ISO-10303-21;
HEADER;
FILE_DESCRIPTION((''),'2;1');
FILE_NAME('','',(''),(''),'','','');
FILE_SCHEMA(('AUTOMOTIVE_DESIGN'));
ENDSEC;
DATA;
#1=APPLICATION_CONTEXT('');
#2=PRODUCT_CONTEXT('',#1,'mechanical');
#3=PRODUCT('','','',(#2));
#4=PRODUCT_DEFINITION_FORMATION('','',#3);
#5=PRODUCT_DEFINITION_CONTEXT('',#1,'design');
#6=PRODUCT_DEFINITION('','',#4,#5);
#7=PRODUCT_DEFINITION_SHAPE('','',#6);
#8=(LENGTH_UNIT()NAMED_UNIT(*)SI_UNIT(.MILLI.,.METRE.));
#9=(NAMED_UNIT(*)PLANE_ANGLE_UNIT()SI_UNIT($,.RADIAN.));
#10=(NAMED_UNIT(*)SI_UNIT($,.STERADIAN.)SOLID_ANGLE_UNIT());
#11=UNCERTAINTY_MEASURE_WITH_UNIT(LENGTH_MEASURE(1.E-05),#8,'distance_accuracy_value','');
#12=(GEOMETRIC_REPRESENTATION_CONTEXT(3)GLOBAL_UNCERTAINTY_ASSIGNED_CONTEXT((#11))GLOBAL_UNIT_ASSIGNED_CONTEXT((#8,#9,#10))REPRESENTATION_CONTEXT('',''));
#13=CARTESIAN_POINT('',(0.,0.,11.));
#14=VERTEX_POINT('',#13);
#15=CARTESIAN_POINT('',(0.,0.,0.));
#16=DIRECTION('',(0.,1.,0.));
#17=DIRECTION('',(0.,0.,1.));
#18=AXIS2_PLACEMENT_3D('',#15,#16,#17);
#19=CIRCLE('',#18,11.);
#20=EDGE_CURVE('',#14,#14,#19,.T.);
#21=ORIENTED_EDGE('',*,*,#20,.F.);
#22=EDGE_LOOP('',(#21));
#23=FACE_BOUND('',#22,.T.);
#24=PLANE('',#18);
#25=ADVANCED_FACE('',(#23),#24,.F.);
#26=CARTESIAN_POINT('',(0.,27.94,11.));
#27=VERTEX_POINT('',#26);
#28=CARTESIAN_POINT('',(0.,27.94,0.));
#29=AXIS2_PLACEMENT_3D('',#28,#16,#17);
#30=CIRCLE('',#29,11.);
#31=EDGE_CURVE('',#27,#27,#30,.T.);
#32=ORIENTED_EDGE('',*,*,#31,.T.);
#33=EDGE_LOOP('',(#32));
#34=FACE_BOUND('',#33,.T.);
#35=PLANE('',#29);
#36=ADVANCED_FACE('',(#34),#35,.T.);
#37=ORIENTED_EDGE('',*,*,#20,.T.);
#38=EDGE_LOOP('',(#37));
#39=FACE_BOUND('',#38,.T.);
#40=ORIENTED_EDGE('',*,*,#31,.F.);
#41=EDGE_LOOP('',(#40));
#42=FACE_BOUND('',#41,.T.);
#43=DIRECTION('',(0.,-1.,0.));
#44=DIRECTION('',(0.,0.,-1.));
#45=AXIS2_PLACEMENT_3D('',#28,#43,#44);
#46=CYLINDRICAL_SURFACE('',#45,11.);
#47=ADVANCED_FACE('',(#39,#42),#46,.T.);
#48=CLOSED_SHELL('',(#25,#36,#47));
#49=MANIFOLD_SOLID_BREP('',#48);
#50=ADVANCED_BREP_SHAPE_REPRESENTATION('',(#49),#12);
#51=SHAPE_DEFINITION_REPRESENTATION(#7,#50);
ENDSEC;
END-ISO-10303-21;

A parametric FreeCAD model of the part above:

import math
import FreeCAD as App
import Part
import Sketcher

V = App.Vector
Q = App.Units.Quantity

doc = App.newDocument("Part")
body = doc.addObject("PartDesign::Body", "Body")

sketch1 = body.newObject("Sketcher::SketchObject", "Sketch")
sketch1.AttachmentSupport = (doc.getObject("XZ_Plane"), [""])
sketch1.MapMode = "FlatFace"
sketch1.addGeometry(Part.Circle(V(0, 0, 0), V(0, 0, 1), 11), False)
sketch1.addConstraint([
    Sketcher.Constraint("Coincident", 0, 3, -1, 1),
    Sketcher.Constraint("Diameter", 0, Q("22 mm")),
])
pad1 = body.newObject("PartDesign::Pad", "Pad")
pad1.Profile = sketch1
pad1.Length = Q("1.1 in")
pad1.Reversed = True

sketch2 = body.newObject("Sketcher::SketchObject", "Sketch001")
sketch2.AttachmentSupport = (doc.getObject("XZ_Plane"), [""])
sketch2.MapMode = "FlatFace"
sketch2.AttachmentOffset = App.Placement(V(0, 0, -0.51 * 25.4), App.Rotation())
sketch2.addGeometry([
    Part.LineSegment(V(-17.2, -14.6, 0), V(-16.3, 14.8, 0)),
    Part.LineSegment(V(-16.3, 14.8, 0), V(21.4, 16.3, 0)),
    Part.LineSegment(V(21.4, 16.3, 0), V(22.1, -14.2, 0)),
    Part.LineSegment(V(22.1, -14.2, 0), V(19.9, -14.6, 0)),
    Part.ArcOfCircle(Part.Circle(V(1.3, 556.6, 0), V(0, 0, 1), 571.5), math.radians(-91.86), math.radians(-88.14)),
    Part.Circle(V(0, 0, 0), V(0, 0, 1), 10.4),
], False)
sketch2.addConstraint([
    Sketcher.Constraint("Coincident", 0, 2, 1, 1),
    Sketcher.Constraint("Coincident", 1, 2, 2, 1),
    Sketcher.Constraint("Coincident", 2, 2, 3, 1),
    Sketcher.Constraint("Coincident", 3, 2, 4, 2),
    Sketcher.Constraint("Coincident", 4, 1, 0, 1),
    Sketcher.Constraint("Coincident", 5, 3, -1, 1),
    Sketcher.Constraint("Horizontal", 3, 2, 4, 1),
    Sketcher.Constraint("Diameter", 5, Q("0.821 in")),
    Sketcher.Constraint("Radius", 4, Q("571.461558 mm")),
    Sketcher.Constraint("DistanceX", 4, 1, 3, 2, Q("1.4616999 in")),
    Sketcher.Constraint("Distance", 3, Q("2.236701 mm")),
    Sketcher.Constraint("Distance", 1, Q("37.717889 mm")),
    Sketcher.Constraint("DistanceY", -1, 1, 4, 3, Q("556.596539 mm")),
    Sketcher.Constraint("DistanceY", -1, 1, 0, 2, Q("14.84083 mm")),
    Sketcher.Constraint("DistanceX", -1, 1, 1, 2, Q("21.406068 mm")),
    Sketcher.Constraint("DistanceX", -1, 1, 3, 2, Q("19.887742 mm")),
    Sketcher.Constraint("DistanceX", 0, 2, 1, 2, Q("37.689821 mm")),
    Sketcher.Constraint("DistanceX", 1, 2, 2, 2, Q("0.688208 mm")),
])
pocket1 = body.newObject("PartDesign::Pocket", "Pocket")
pocket1.Profile = sketch2
pocket1.Length = Q("0.046 in")
pocket1.Reversed = True

sketch3 = body.newObject("Sketcher::SketchObject", "Sketch002")
sketch3.AttachmentSupport = (doc.getObject("XZ_Plane"), [""])
sketch3.MapMode = "FlatFace"
sketch3.addGeometry(Part.Circle(V(0, 0, 0), V(0, 0, 1), 11), False)
sketch3.addConstraint([
    Sketcher.Constraint("Coincident", 0, 3, -1, 1),
    Sketcher.Constraint("Diameter", 0, Q("22 mm")),
])
pad2 = body.newObject("PartDesign::Pad", "Pad001")
pad2.Profile = sketch3
pad2.Length = Q("0.8 in")
pad2.Reversed = True

doc.recompute()
